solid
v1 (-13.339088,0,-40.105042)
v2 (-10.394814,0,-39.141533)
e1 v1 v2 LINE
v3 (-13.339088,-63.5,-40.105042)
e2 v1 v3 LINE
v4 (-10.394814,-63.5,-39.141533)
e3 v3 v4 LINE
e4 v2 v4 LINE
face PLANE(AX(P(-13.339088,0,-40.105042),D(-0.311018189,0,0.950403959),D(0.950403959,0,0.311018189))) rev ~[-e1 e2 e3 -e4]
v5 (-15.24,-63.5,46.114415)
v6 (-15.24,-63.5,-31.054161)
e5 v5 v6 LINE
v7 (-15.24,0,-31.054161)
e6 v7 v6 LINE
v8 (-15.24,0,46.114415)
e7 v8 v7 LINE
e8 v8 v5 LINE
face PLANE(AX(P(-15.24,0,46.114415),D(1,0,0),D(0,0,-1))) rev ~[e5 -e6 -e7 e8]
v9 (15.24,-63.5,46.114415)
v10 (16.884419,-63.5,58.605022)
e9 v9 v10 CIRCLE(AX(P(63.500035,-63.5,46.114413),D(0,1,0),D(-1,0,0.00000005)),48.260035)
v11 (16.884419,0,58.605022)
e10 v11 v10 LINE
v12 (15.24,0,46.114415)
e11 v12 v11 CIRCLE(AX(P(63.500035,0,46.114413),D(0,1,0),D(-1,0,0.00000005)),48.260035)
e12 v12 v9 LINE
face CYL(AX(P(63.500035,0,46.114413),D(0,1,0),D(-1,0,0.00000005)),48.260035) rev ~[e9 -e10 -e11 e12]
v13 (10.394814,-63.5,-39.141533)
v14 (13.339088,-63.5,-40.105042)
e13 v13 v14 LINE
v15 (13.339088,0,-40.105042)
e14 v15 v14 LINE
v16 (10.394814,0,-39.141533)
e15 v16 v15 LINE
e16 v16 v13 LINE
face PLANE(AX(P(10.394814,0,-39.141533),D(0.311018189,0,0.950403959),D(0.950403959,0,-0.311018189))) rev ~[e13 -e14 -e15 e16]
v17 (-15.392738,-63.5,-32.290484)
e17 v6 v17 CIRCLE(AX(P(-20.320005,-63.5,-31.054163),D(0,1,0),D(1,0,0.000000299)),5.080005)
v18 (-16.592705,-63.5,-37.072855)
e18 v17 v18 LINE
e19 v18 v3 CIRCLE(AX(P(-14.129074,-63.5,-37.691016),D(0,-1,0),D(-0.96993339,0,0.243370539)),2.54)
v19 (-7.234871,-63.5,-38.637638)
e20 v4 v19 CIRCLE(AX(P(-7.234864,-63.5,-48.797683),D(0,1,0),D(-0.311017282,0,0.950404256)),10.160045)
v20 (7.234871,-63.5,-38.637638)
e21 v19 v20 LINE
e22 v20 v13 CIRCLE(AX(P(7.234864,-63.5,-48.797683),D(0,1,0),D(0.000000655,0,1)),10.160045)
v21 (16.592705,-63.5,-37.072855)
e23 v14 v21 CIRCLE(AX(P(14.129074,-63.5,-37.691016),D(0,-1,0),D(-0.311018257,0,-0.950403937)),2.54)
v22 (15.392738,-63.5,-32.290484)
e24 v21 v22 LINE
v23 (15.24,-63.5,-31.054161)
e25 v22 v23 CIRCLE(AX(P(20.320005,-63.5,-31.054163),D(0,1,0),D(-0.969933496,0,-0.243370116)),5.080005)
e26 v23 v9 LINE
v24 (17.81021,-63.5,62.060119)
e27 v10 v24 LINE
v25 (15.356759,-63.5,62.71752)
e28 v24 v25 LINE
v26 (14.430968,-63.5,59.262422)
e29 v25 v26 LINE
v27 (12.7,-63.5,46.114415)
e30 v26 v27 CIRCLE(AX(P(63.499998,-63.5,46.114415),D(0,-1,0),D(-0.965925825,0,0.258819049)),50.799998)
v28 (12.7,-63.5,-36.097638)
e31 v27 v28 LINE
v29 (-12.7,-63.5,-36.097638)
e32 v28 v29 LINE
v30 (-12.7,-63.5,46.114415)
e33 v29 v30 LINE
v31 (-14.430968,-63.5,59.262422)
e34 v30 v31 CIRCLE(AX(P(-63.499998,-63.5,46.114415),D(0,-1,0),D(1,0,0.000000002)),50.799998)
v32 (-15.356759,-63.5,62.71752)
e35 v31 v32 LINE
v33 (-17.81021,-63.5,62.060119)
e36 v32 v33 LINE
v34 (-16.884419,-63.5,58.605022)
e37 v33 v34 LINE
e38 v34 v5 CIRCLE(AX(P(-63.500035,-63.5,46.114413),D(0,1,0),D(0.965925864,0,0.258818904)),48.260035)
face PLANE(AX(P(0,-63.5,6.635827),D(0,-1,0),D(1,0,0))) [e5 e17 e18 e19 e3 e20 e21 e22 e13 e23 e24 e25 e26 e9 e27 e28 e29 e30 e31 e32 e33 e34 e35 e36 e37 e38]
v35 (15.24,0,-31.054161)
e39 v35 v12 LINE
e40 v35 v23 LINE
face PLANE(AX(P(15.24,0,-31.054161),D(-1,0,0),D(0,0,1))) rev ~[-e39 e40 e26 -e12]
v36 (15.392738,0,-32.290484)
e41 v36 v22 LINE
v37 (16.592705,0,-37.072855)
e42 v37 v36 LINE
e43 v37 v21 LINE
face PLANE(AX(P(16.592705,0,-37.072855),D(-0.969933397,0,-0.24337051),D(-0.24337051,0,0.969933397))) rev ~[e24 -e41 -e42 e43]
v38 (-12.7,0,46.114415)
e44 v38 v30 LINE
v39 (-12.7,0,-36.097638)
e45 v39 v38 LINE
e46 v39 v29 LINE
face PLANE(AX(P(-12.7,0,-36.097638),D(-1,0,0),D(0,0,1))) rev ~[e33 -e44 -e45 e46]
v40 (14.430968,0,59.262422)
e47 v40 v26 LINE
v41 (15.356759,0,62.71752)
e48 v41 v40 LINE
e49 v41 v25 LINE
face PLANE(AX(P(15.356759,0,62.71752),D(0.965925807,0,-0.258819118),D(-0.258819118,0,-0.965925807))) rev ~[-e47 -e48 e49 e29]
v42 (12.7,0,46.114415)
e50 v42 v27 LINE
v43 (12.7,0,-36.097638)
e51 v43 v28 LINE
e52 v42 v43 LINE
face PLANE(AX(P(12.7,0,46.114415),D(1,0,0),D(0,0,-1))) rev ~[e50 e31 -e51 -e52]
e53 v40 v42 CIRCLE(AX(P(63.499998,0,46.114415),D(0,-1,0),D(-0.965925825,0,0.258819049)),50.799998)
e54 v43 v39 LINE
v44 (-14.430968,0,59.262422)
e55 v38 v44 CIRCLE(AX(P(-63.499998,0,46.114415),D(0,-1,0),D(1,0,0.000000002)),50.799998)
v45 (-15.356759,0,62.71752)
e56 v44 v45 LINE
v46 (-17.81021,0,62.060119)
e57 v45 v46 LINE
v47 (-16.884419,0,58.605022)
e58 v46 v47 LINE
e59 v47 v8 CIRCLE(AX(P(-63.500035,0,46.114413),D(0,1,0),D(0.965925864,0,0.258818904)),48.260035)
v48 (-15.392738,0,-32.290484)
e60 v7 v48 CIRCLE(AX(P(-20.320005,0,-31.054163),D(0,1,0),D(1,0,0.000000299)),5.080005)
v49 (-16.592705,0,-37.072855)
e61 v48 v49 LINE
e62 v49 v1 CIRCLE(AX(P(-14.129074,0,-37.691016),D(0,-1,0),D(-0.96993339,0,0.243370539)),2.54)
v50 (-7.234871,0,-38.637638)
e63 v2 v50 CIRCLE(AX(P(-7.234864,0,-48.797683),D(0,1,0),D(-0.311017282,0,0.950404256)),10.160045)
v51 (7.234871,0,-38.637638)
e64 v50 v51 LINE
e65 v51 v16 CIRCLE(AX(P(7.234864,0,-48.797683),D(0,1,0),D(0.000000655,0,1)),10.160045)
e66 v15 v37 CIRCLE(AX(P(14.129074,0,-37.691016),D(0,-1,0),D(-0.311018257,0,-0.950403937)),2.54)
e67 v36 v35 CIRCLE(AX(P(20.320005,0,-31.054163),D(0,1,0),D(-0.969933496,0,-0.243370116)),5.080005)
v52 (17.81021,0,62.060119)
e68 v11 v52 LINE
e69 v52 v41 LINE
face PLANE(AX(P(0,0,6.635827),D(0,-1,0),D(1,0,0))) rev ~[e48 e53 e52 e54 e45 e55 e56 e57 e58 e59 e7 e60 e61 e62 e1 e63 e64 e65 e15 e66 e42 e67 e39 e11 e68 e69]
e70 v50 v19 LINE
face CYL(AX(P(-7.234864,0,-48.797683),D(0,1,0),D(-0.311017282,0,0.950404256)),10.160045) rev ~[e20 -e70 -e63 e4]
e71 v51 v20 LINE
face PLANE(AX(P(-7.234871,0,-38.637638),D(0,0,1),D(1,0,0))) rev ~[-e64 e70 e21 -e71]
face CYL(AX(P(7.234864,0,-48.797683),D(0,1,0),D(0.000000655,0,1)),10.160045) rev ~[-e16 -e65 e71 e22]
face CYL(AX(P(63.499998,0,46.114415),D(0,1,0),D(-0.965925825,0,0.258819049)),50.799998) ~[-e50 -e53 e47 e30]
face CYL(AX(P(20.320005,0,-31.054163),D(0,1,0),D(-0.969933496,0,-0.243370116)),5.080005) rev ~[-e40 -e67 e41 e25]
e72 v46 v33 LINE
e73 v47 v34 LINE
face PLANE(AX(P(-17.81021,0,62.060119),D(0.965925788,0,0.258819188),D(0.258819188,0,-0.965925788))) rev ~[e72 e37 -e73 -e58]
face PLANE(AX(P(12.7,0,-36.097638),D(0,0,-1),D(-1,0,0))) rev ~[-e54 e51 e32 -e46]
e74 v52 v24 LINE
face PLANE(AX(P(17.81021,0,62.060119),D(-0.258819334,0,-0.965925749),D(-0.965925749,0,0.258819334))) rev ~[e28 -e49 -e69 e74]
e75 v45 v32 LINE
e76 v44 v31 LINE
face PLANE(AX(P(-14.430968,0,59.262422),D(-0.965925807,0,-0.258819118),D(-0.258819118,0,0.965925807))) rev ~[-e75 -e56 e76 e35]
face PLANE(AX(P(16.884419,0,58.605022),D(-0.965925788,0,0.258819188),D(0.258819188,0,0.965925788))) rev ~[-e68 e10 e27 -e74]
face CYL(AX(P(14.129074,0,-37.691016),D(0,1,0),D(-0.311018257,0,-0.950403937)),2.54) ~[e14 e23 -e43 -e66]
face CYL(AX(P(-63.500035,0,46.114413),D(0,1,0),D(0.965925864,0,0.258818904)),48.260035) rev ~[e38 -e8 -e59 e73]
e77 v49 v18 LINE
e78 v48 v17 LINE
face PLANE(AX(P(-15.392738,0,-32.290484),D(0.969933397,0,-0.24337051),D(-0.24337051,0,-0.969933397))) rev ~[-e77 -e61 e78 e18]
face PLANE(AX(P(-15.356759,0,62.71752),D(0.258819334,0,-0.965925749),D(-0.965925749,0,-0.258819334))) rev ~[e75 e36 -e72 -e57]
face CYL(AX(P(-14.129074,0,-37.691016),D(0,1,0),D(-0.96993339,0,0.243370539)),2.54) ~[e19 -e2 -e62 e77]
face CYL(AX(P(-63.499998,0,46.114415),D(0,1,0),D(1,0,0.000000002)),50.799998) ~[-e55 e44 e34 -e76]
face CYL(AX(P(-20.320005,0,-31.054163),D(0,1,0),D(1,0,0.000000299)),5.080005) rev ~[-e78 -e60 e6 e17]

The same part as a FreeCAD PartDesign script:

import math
import FreeCAD as App
import Part
import Sketcher
from FreeCAD import Vector
Q = App.Units.Quantity

doc = App.newDocument("Part")
body = doc.addObject("PartDesign::Body", "Body")

sketch1 = body.newObject("Sketcher::SketchObject", "Sketch")
sketch1.AttachmentSupport = (doc.getObject("XZ_Plane"), [""])
sketch1.MapMode = "FlatFace"
sketch1.addGeometry(Part.LineSegment(Vector(-12.7, -36.097638, 0), Vector(-12.7, 46.114415, 0)), False)
sketch1.addGeometry(Part.ArcOfCircle(Part.Circle(Vector(-63.499998, 46.114415, 0), Vector(0, 0, 1), 50.799998), math.radians(0), math.radians(15)), False)
sketch1.addGeometry(Part.LineSegment(Vector(-14.430968, 59.262422, 0), Vector(-15.356759, 62.71752, 0)), False)
sketch1.addGeometry(Part.LineSegment(Vector(-15.356759, 62.71752, 0), Vector(-17.81021, 62.060119, 0)), False)
sketch1.addGeometry(Part.LineSegment(Vector(-17.81021, 62.060119, 0), Vector(-16.884419, 58.605022, 0)), False)
sketch1.addGeometry(Part.ArcOfCircle(Part.Circle(Vector(-63.500035, 46.114413, 0), Vector(0, 0, 1), 48.260035), math.radians(0.000003), math.radians(14.999992)), False)
sketch1.addGeometry(Part.LineSegment(Vector(-15.24, 46.114415, 0), Vector(-15.24, -31.054161, 0)), False)
sketch1.addGeometry(Part.ArcOfCircle(Part.Circle(Vector(-20.320005, -31.054163, 0), Vector(0, 0, 1), 5.080005), math.radians(-14.085533), math.radians(0.000017)), False)
sketch1.addGeometry(Part.LineSegment(Vector(-15.392738, -32.290484, 0), Vector(-16.592705, -37.072855, 0)), False)
sketch1.addGeometry(Part.ArcOfCircle(Part.Circle(Vector(-14.129074, -37.691016, 0), Vector(0, 0, 1), 2.54), math.radians(165.914442), math.radians(288.120606)), False)
sketch1.addGeometry(Part.LineSegment(Vector(-13.339088, -40.105042, 0), Vector(-10.394814, -39.141533, 0)), False)
sketch1.addGeometry(Part.ArcOfCircle(Part.Circle(Vector(-7.234864, -48.797683, 0), Vector(0, 0, 1), 10.160045), math.radians(90.000038), math.radians(108.120547)), False)
sketch1.addGeometry(Part.LineSegment(Vector(-7.234871, -38.637638, 0), Vector(7.234871, -38.637638, 0)), False)
sketch1.addGeometry(Part.ArcOfCircle(Part.Circle(Vector(7.234864, -48.797683, 0), Vector(0, 0, 1), 10.160045), math.radians(71.879453), math.radians(89.999962)), False)
sketch1.addGeometry(Part.LineSegment(Vector(10.394814, -39.141533, 0), Vector(13.339088, -40.105042, 0)), False)
sketch1.addGeometry(Part.ArcOfCircle(Part.Circle(Vector(14.129074, -37.691016, 0), Vector(0, 0, 1), 2.54), math.radians(-108.120606), math.radians(14.085558)), False)
sketch1.addGeometry(Part.LineSegment(Vector(16.592705, -37.072855, 0), Vector(15.392738, -32.290484, 0)), False)
sketch1.addGeometry(Part.ArcOfCircle(Part.Circle(Vector(20.320005, -31.054163, 0), Vector(0, 0, 1), 5.080005), math.radians(179.999983), math.radians(194.085533)), False)
sketch1.addGeometry(Part.LineSegment(Vector(15.24, -31.054161, 0), Vector(15.24, 46.114415, 0)), False)
sketch1.addGeometry(Part.ArcOfCircle(Part.Circle(Vector(63.500035, 46.114413, 0), Vector(0, 0, 1), 48.260035), math.radians(165.000008), math.radians(179.999997)), False)
sketch1.addGeometry(Part.LineSegment(Vector(16.884419, 58.605022, 0), Vector(17.81021, 62.060119, 0)), False)
sketch1.addGeometry(Part.LineSegment(Vector(17.81021, 62.060119, 0), Vector(15.356759, 62.71752, 0)), False)
sketch1.addGeometry(Part.LineSegment(Vector(15.356759, 62.71752, 0), Vector(14.430968, 59.262422, 0)), False)
sketch1.addGeometry(Part.ArcOfCircle(Part.Circle(Vector(63.499998, 46.114415, 0), Vector(0, 0, 1), 50.799998), math.radians(165), math.radians(180)), False)
sketch1.addGeometry(Part.LineSegment(Vector(12.7, 46.114415, 0), Vector(12.7, -36.097638, 0)), False)
sketch1.addGeometry(Part.LineSegment(Vector(12.7, -36.097638, 0), Vector(-12.7, -36.097638, 0)), False)
sketch1.addConstraint(Sketcher.Constraint("Coincident", 0, 2, 1, 1))
sketch1.addConstraint(Sketcher.Constraint("Coincident", 1, 2, 2, 1))
sketch1.addConstraint(Sketcher.Constraint("Coincident", 2, 2, 3, 1))
sketch1.addConstraint(Sketcher.Constraint("Coincident", 3, 2, 4, 1))
sketch1.addConstraint(Sketcher.Constraint("Coincident", 4, 2, 5, 2))
sketch1.addConstraint(Sketcher.Constraint("Coincident", 5, 1, 6, 1))
sketch1.addConstraint(Sketcher.Constraint("Coincident", 6, 2, 7, 2))
sketch1.addConstraint(Sketcher.Constraint("Coincident", 7, 1, 8, 1))
sketch1.addConstraint(Sketcher.Constraint("Coincident", 8, 2, 9, 1))
sketch1.addConstraint(Sketcher.Constraint("Coincident", 9, 2, 10, 1))
sketch1.addConstraint(Sketcher.Constraint("Coincident", 10, 2, 11, 2))
sketch1.addConstraint(Sketcher.Constraint("Coincident", 11, 1, 12, 1))
sketch1.addConstraint(Sketcher.Constraint("Coincident", 12, 2, 13, 2))
sketch1.addConstraint(Sketcher.Constraint("Coincident", 13, 1, 14, 1))
sketch1.addConstraint(Sketcher.Constraint("Coincident", 14, 2, 15, 1))
sketch1.addConstraint(Sketcher.Constraint("Coincident", 15, 2, 16, 1))
sketch1.addConstraint(Sketcher.Constraint("Coincident", 16, 2, 17, 2))
sketch1.addConstraint(Sketcher.Constraint("Coincident", 17, 1, 18, 1))
sketch1.addConstraint(Sketcher.Constraint("Coincident", 18, 2, 19, 2))
sketch1.addConstraint(Sketcher.Constraint("Coincident", 19, 1, 20, 1))
sketch1.addConstraint(Sketcher.Constraint("Coincident", 20, 2, 21, 1))
sketch1.addConstraint(Sketcher.Constraint("Coincident", 21, 2, 22, 1))
sketch1.addConstraint(Sketcher.Constraint("Coincident", 22, 2, 23, 1))
sketch1.addConstraint(Sketcher.Constraint("Coincident", 23, 2, 24, 1))
sketch1.addConstraint(Sketcher.Constraint("Coincident", 24, 2, 25, 1))
sketch1.addConstraint(Sketcher.Constraint("Coincident", 25, 2, 0, 1))
sketch1.addConstraint(Sketcher.Constraint("Vertical", 0))
sketch1.addConstraint(Sketcher.Constraint("Vertical", 6))
sketch1.addConstraint(Sketcher.Constraint("Horizontal", 12))
sketch1.addConstraint(Sketcher.Constraint("Vertical", 18))
sketch1.addConstraint(Sketcher.Constraint("Vertical", 24))
sketch1.addConstraint(Sketcher.Constraint("Horizontal", 25))
sketch1.addConstraint(Sketcher.Constraint("Radius", 1, Q("1.9999999 in")))
sketch1.addConstraint(Sketcher.Constraint("Radius", 23, Q("1.9999999 in")))
sketch1.addConstraint(Sketcher.Constraint("Radius", 9, Q("0.1 in")))
sketch1.addConstraint(Sketcher.Constraint("Radius", 15, Q("0.1 in")))
sketch1.addConstraint(Sketcher.Constraint("DistanceX", 25, 2, 25, 1, Q("1 in")))
sketch1.addConstraint(Sketcher.Constraint("Distance", 3, Q("0.1 in")))
sketch1.addConstraint(Sketcher.Constraint("Distance", 21, Q("0.1 in")))
sketch1.addConstraint(Sketcher.Constraint("DistanceX", 1, 3, -1, 1, Q("2.4999999 in")))
sketch1.addConstraint(Sketcher.Constraint("DistanceX", 5, 1, -1, 1, Q("0.6 in")))
sketch1.addConstraint(Sketcher.Constraint("DistanceX", -1, 1, 17, 1, Q("0.6 in")))
sketch1.addConstraint(Sketcher.Constraint("DistanceX", 7, 3, 23, 3, Q("3.3000001 in")))
sketch1.addConstraint(Sketcher.Constraint("Radius", 5, 48.260035))
sketch1.addConstraint(Sketcher.Constraint("Radius", 11, 10.160045))
sketch1.addConstraint(Sketcher.Constraint("Radius", 13, 10.160045))
sketch1.addConstraint(Sketcher.Constraint("Radius", 17, 5.080005))
sketch1.addConstraint(Sketcher.Constraint("Radius", 19, 48.260035))
sketch1.addConstraint(Sketcher.Constraint("DistanceX", 9, 3, 13, 3, Q("0.8410999 in")))
sketch1.addConstraint(Sketcher.Constraint("DistanceX", 11, 3, 15, 3, Q("0.8410999 in")))
sketch1.addConstraint(Sketcher.Constraint("DistanceY", 11, 3, 1, 3, 94.912098))
sketch1.addConstraint(Sketcher.Constraint("DistanceX", 5, 3, 13, 3, 70.734899))
sketch1.addConstraint(Sketcher.Constraint("DistanceY", 13, 3, 23, 3, 94.912098))
sketch1.addConstraint(Sketcher.Constraint("DistanceY", 1, 2, 2, 2, 3.455098))
sketch1.addConstraint(Sketcher.Constraint("DistanceY", 3, 2, 2, 2, 0.657401))
sketch1.addConstraint(Sketcher.Constraint("DistanceY", 4, 2, 1, 2, 0.6574))
sketch1.addConstraint(Sketcher.Constraint("DistanceY", 11, 3, 7, 1, 16.507199))
sketch1.addConstraint(Sketcher.Constraint("DistanceX", 7, 3, 8, 2, 3.7273))
sketch1.addConstraint(Sketcher.Constraint("DistanceX", 15, 2, 17, 3, 3.7273))
sketch1.addConstraint(Sketcher.Constraint("DistanceY", 19, 1, 1, 2, 0.6574))
sketch1.addConstraint(Sketcher.Constraint("DistanceY", 20, 2, 2, 2, 0.657401))
sketch1.addConstraint(Sketcher.Constraint("DistanceY", 20, 2, 21, 2, 0.657401))
sketch1.addConstraint(Sketcher.Constraint("DistanceY", 19, 1, 22, 2, 0.6574))
sketch1.addConstraint(Sketcher.Constraint("Distance", 2, 3.576981))
sketch1.addConstraint(Sketcher.Constraint("Distance", 4, 3.57698))
sketch1.addConstraint(Sketcher.Constraint("Distance", 10, 3.097918))
sketch1.addConstraint(Sketcher.Constraint("Distance", 14, 3.097918))
sketch1.addConstraint(Sketcher.Constraint("Distance", 20, 3.57698))
sketch1.addConstraint(Sketcher.Constraint("Distance", 22, 3.576981))
sketch1.addConstraint(Sketcher.Constraint("DistanceX", 12, 1, 12, 2, 14.469742))
sketch1.addConstraint(Sketcher.Constraint("DistanceY", 0, 1, 0, 2, 82.212053))
sketch1.addConstraint(Sketcher.Constraint("DistanceY", 6, 2, 6, 1, 77.168576))
sketch1.addConstraint(Sketcher.Constraint("DistanceY", 18, 1, 18, 2, 77.168576))
sketch1.addConstraint(Sketcher.Constraint("DistanceY", 24, 2, 24, 1, 82.212053))
sketch1.addConstraint(Sketcher.Constraint("DistanceX", 1, 2, -1, 1, 14.430968))
sketch1.addConstraint(Sketcher.Constraint("DistanceY", -1, 1, 1, 2, 59.262422))
sketch1.addConstraint(Sketcher.Constraint("DistanceY", 6, 2, -1, 1, 31.054161))
sketch1.addConstraint(Sketcher.Constraint("DistanceX", 11, 1, -1, 1, 7.234871))
sketch1.addConstraint(Sketcher.Constraint("DistanceY", 14, 2, -1, 1, 40.105042))
sketch1.addConstraint(Sketcher.Constraint("DistanceY", 17, 1, -1, 1, 31.054161))
sketch1.addConstraint(Sketcher.Constraint("DistanceY", 24, 2, -1, 1, 36.097638))
sketch1.addConstraint(Sketcher.Constraint("DistanceY", 9, 3, 1, 3, 83.805431))
sketch1.addConstraint(Sketcher.Constraint("DistanceX", 9, 3, 11, 3, 6.89421))
sketch1.addConstraint(Sketcher.Constraint("DistanceY", 11, 3, 7, 3, 17.743521))
sketch1.addConstraint(Sketcher.Constraint("DistanceY", 15, 3, 1, 3, 83.805431))
sketch1.addConstraint(Sketcher.Constraint("DistanceY", 13, 3, 17, 3, 17.743521))
sketch1.addConstraint(Sketcher.Constraint("DistanceX", 7, 1, 9, 2, 2.05365))
sketch1.addConstraint(Sketcher.Constraint("DistanceY", 15, 2, 16, 2, 4.782371))
pad1 = body.newObject("PartDesign::Pad", "Pad")
pad1.Profile = sketch1
pad1.Length = Q("2.5 in")

doc.recompute()
